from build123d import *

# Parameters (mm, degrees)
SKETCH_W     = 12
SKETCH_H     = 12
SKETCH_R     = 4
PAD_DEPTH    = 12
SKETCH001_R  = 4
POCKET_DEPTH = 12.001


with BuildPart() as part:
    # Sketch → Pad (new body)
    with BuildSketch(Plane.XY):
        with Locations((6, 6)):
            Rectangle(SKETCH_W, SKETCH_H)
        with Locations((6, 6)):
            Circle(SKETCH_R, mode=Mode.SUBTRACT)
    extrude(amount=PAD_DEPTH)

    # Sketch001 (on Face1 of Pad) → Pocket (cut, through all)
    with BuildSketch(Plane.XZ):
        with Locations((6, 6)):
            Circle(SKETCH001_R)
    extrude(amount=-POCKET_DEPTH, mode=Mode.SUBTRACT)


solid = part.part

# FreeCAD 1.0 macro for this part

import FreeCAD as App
import Part
import Sketcher

V = App.Vector

doc = App.newDocument("Part")
body = doc.addObject("PartDesign::Body", "Body")

sketch1 = doc.addObject("Sketcher::SketchObject", "Sketch")
body.addObject(sketch1)
sketch1.AttachmentSupport = (doc.XY_Plane, [""])
sketch1.MapMode = "FlatFace"
sketch1.addGeometry(Part.LineSegment(V(0, 12, 0), V(0, 0, 0)), False)
sketch1.addGeometry(Part.LineSegment(V(0, 0, 0), V(12, 0, 0)), False)
sketch1.addGeometry(Part.LineSegment(V(12, 0, 0), V(12, 12, 0)), False)
sketch1.addGeometry(Part.LineSegment(V(12, 12, 0), V(0, 12, 0)), False)
sketch1.addGeometry(Part.Circle(V(6, 6, 0), V(0, 0, 1), 4), False)
sketch1.addConstraint(Sketcher.Constraint("Coincident", 0, 2, 1, 1))
sketch1.addConstraint(Sketcher.Constraint("Coincident", 1, 2, 2, 1))
sketch1.addConstraint(Sketcher.Constraint("Coincident", 2, 2, 3, 1))
sketch1.addConstraint(Sketcher.Constraint("Coincident", 3, 2, 0, 1))
sketch1.addConstraint(Sketcher.Constraint("Vertical", 0))
sketch1.addConstraint(Sketcher.Constraint("Horizontal", 1))
sketch1.addConstraint(Sketcher.Constraint("Vertical", 2))
sketch1.addConstraint(Sketcher.Constraint("Horizontal", 3))
sketch1.addConstraint(Sketcher.Constraint("Coincident", 0, 2, -1, 1))
sketch1.addConstraint(Sketcher.Constraint("Equal", 3, 0))
sketch1.addConstraint(Sketcher.Constraint("Diameter", 4, 8.0))
sketch1.addConstraint(Sketcher.Constraint("DistanceX", 1, 1, 1, 2, 12.0))
sketch1.addConstraint(Sketcher.Constraint("DistanceX", -1, 1, 4, 3, 6.0))
sketch1.addConstraint(Sketcher.Constraint("DistanceY", -1, 1, 4, 3, 6.0))
pad1 = doc.addObject("PartDesign::Pad", "Pad")
body.addObject(pad1)
pad1.Profile = sketch1
pad1.Length = 12

sketch2 = doc.addObject("Sketcher::SketchObject", "Sketch001")
body.addObject(sketch2)
sketch2.AttachmentSupport = (doc.XZ_Plane, [""])
sketch2.MapMode = "FlatFace"
sketch2.addGeometry(Part.Circle(V(6, 6, 0), V(0, 0, 1), 4), False)
sketch2.addConstraint(Sketcher.Constraint("Diameter", 0, 8.0))
sketch2.addConstraint(Sketcher.Constraint("DistanceX", -1, 1, 0, 3, 6.0))
sketch2.addConstraint(Sketcher.Constraint("DistanceY", -1, 1, 0, 3, 6.0))
pocket1 = doc.addObject("PartDesign::Pocket", "Pocket")
body.addObject(pocket1)
pocket1.Profile = sketch2
pocket1.Type = "ThroughAll"

doc.recompute()
